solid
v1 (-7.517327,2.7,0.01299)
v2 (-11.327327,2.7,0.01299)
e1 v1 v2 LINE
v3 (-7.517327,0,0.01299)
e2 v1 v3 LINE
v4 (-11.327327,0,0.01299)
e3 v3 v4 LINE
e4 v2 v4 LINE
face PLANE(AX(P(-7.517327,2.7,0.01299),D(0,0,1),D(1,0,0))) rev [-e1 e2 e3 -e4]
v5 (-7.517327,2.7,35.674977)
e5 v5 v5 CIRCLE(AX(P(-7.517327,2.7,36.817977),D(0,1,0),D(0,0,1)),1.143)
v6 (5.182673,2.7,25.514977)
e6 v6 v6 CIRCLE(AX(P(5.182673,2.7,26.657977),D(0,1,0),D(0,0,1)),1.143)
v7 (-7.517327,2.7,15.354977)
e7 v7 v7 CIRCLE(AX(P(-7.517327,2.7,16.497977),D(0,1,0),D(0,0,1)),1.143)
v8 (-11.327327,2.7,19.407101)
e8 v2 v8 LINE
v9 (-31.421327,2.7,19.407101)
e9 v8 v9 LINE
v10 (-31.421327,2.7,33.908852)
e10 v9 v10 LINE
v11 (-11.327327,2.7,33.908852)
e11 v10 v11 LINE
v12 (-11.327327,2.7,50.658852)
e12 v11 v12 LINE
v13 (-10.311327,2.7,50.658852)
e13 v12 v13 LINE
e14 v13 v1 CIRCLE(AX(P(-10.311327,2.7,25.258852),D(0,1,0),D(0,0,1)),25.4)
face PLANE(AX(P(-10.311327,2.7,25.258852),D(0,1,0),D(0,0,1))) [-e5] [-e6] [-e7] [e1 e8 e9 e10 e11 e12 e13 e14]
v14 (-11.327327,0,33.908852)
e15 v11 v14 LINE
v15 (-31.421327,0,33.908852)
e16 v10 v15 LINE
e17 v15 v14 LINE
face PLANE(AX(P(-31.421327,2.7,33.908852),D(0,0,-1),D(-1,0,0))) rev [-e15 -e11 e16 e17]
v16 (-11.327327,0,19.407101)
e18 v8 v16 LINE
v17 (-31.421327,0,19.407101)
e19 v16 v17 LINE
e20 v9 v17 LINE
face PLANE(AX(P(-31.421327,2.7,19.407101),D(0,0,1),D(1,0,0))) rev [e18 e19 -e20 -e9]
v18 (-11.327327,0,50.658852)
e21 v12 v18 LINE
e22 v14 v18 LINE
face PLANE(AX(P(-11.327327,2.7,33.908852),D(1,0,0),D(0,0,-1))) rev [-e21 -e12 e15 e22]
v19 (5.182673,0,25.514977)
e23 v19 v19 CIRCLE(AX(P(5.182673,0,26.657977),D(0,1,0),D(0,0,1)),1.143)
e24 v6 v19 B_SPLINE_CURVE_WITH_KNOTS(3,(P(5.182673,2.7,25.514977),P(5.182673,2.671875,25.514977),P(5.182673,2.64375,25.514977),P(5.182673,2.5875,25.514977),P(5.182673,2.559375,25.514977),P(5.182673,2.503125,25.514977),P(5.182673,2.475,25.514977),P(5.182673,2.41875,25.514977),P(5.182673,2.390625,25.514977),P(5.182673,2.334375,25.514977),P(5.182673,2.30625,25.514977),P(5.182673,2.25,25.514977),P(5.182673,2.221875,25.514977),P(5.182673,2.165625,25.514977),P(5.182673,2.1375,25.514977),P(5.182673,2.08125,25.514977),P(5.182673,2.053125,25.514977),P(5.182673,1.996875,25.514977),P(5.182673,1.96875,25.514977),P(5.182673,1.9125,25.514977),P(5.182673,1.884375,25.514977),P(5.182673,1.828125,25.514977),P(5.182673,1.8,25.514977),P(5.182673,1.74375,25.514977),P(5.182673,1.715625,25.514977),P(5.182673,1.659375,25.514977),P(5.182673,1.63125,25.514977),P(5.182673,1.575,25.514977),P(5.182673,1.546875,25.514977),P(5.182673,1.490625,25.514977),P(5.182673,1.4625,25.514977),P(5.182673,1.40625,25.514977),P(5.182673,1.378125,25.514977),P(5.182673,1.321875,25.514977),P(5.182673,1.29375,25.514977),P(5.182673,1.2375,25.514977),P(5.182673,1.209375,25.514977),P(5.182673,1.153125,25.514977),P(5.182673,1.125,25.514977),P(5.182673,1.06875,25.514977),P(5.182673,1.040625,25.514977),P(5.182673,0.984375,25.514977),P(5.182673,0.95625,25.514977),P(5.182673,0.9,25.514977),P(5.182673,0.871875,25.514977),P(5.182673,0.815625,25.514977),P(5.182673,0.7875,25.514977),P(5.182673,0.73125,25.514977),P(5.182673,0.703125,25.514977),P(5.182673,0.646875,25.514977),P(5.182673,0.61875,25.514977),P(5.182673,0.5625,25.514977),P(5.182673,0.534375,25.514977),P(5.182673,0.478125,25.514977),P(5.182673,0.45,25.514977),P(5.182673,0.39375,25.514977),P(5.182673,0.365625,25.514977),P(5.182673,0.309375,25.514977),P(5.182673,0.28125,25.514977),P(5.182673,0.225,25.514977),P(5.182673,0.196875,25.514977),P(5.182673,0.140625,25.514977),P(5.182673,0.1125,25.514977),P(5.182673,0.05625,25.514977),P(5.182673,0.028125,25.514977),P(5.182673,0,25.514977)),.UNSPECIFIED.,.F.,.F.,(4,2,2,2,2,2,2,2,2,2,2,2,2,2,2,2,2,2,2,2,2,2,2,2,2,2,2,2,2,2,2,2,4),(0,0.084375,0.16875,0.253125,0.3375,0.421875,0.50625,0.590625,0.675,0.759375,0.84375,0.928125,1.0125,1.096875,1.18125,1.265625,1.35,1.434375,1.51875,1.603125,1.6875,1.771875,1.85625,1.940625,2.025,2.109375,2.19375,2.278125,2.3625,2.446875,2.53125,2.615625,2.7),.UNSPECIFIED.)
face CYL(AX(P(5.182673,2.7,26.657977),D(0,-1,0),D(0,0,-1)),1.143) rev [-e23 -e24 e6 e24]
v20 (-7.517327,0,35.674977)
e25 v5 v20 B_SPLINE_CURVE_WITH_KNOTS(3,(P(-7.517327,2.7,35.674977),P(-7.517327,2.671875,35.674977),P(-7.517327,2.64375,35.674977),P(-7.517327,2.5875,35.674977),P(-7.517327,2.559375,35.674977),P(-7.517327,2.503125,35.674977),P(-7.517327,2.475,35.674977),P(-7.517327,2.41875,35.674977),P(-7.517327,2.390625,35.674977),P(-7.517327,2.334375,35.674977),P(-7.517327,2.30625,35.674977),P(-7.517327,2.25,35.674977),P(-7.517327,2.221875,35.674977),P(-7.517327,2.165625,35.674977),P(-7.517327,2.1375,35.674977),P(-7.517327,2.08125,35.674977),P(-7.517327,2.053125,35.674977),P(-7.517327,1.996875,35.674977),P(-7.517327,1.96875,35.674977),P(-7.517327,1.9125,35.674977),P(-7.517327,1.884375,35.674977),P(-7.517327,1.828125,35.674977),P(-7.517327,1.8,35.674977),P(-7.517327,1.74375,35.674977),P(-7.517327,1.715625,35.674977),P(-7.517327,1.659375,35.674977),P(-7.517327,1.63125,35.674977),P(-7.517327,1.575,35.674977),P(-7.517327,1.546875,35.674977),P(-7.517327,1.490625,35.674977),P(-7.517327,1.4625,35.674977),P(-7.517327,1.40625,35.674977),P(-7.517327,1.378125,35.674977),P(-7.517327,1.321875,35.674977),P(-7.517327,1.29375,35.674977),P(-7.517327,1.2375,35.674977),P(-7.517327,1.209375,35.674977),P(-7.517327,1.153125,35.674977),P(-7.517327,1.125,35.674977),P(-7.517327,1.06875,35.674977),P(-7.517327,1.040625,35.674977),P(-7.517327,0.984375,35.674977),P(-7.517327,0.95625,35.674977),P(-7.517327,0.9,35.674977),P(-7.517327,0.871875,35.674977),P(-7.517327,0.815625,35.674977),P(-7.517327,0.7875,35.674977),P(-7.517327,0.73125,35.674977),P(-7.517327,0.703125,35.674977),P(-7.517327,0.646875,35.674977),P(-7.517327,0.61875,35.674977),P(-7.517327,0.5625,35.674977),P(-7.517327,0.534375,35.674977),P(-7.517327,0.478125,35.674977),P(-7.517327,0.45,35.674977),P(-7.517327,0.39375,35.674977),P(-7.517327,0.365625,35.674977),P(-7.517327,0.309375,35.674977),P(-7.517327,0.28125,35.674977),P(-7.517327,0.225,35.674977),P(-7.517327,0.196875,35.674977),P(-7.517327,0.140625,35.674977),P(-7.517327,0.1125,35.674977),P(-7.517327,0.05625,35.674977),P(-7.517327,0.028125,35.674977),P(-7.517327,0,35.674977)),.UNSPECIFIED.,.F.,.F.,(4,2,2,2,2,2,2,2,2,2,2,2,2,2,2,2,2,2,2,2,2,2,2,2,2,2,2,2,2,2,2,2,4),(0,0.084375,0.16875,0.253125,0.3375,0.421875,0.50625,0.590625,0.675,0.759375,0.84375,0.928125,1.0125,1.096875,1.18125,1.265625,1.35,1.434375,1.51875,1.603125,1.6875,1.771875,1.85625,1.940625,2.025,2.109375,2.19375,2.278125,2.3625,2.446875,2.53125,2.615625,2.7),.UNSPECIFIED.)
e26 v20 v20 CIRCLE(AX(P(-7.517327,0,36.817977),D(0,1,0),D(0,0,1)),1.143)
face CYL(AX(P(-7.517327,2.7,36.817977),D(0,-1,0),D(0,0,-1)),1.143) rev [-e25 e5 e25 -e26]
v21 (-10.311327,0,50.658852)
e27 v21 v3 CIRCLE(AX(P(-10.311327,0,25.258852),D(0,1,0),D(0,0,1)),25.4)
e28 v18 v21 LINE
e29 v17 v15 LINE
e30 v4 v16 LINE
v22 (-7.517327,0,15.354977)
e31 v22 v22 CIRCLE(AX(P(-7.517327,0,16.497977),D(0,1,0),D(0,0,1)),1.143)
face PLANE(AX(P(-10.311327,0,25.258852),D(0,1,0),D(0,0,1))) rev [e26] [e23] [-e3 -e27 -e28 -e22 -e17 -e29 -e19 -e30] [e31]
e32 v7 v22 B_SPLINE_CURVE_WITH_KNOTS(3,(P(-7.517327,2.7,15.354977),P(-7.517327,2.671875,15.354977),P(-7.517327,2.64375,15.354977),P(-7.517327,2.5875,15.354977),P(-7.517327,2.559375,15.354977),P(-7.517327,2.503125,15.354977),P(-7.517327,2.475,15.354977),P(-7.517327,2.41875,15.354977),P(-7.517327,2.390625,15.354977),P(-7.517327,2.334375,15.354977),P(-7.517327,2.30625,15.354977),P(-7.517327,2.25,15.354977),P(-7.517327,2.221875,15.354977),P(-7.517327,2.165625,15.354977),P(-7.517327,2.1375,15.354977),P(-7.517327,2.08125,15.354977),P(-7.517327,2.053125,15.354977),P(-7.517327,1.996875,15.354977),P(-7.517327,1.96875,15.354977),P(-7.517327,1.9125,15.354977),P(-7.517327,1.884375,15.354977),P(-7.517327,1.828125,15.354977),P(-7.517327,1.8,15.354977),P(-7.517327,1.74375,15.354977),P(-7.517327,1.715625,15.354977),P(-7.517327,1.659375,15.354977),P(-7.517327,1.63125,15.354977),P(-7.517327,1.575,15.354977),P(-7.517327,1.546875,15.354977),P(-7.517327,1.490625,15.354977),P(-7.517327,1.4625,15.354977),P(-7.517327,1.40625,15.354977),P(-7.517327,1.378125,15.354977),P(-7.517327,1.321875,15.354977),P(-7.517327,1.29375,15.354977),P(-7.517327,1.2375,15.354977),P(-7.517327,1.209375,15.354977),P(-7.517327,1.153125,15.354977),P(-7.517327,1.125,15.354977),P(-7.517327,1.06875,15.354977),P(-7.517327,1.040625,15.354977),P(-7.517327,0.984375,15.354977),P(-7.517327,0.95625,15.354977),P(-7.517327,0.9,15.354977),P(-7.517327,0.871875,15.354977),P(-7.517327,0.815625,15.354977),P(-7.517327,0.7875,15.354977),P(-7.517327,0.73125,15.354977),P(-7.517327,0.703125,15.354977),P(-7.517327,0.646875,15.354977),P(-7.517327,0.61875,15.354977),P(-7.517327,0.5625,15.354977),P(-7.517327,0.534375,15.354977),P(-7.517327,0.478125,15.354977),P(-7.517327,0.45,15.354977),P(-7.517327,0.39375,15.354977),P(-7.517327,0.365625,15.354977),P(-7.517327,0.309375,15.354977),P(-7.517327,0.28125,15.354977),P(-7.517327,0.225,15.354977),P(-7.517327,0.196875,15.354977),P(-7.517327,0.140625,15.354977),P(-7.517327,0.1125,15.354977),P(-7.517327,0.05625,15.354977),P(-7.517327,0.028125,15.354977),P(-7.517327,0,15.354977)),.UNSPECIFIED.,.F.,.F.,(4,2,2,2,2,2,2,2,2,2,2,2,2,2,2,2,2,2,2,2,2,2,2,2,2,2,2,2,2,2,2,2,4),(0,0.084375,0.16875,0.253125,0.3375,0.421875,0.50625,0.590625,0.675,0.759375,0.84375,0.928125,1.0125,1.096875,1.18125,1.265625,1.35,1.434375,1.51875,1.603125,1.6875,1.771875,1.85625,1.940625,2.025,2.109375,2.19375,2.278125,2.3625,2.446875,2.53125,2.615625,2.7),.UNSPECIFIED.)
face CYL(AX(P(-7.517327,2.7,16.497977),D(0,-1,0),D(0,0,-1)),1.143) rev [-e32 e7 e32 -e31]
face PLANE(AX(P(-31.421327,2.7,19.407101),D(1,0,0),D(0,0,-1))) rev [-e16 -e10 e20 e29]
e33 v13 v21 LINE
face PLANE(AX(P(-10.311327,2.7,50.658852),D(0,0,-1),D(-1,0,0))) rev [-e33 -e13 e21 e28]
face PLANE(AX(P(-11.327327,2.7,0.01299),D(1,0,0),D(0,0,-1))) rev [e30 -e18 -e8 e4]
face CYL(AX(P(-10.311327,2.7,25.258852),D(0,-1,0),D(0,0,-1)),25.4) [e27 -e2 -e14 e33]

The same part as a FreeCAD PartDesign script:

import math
import FreeCAD as App
import Part
import Sketcher
from FreeCAD import Vector
Q = App.Units.Quantity

doc = App.newDocument("Part")
body = doc.addObject("PartDesign::Body", "Body")

sketch1 = doc.addObject("Sketcher::SketchObject", "Sketch")
body.addObject(sketch1)
sketch1.AttachmentSupport = (doc.XZ_Plane, [""])
sketch1.MapMode = "FlatFace"
sketch1.addGeometry([
    Part.LineSegment(Vector(-11.3, 33.9, 0), Vector(-11.3, 50.7, 0)),
    Part.LineSegment(Vector(-11.3, 50.7, 0), Vector(-10.3, 50.7, 0)),
    Part.ArcOfCircle(Part.Circle(Vector(-10.3, 25.3, 0), Vector(0, 0, 1), 25.4), math.radians(-84), math.radians(90)),
    Part.LineSegment(Vector(-7.5, 0, 0), Vector(-11.3, 0, 0)),
    Part.LineSegment(Vector(-11.3, 0, 0), Vector(-11.3, 19.4, 0)),
    Part.LineSegment(Vector(-11.3, 19.4, 0), Vector(-31.4, 19.4, 0)),
    Part.LineSegment(Vector(-31.4, 19.4, 0), Vector(-31.4, 33.9, 0)),
    Part.LineSegment(Vector(-31.4, 33.9, 0), Vector(-11.3, 33.9, 0)),
    Part.Circle(Vector(-7.5, 36.8, 0), Vector(0, 0, 1), 1.1),
    Part.Circle(Vector(-7.5, 16.5, 0), Vector(0, 0, 1), 1.1),
    Part.Circle(Vector(5.2, 26.7, 0), Vector(0, 0, 1), 1.1),
], False)
sketch1.addConstraint([
    Sketcher.Constraint("Coincident", 0, 2, 1, 1),
    Sketcher.Constraint("Tangent", 1, 2, 2, 2),
    Sketcher.Constraint("Coincident", 2, 1, 3, 1),
    Sketcher.Constraint("Coincident", 3, 2, 4, 1),
    Sketcher.Constraint("Coincident", 4, 2, 5, 1),
    Sketcher.Constraint("Coincident", 5, 2, 6, 1),
    Sketcher.Constraint("Coincident", 6, 2, 7, 1),
    Sketcher.Constraint("Coincident", 7, 2, 0, 1),
    Sketcher.Constraint("Vertical", 0),
    Sketcher.Constraint("Horizontal", 1),
    Sketcher.Constraint("Horizontal", 3),
    Sketcher.Constraint("Vertical", 4),
    Sketcher.Constraint("Horizontal", 5),
    Sketcher.Constraint("Vertical", 6),
    Sketcher.Constraint("Horizontal", 7),
    Sketcher.Constraint("Equal", 8, 9),
    Sketcher.Constraint("Equal", 9, 10),
    Sketcher.Constraint("Vertical", 8, 3, 9, 3),
    Sketcher.Constraint("Vertical", 9, 3, 2, 1),
    Sketcher.Constraint("Vertical", 0, 2, 3, 2),
    Sketcher.Constraint("Radius", 2, Q("1 in")),
    Sketcher.Constraint("Diameter", 8, Q("0.09 in")),
    Sketcher.Constraint("DistanceX", 1, 1, 1, 2, Q("0.04 in")),
    Sketcher.Constraint("DistanceX", 3, 2, 3, 1, Q("0.15 in")),
    Sketcher.Constraint("DistanceY", 9, 3, 8, 3, Q("0.8 in")),
    Sketcher.Constraint("DistanceX", 8, 3, 10, 3, Q("0.5 in")),
    Sketcher.Constraint("DistanceY", 10, 3, 8, 3, Q("0.4 in")),
    Sketcher.Constraint("DistanceX", 5, 2, 5, 1, 20.094),
    Sketcher.Constraint("DistanceY", 0, 1, 0, 2, 16.75),
    Sketcher.Constraint("DistanceY", 4, 1, 4, 2, 19.394111),
    Sketcher.Constraint("DistanceY", -1, 1, 4, 2, 19.407101),
    Sketcher.Constraint("DistanceX", 2, 3, -1, 1, 10.311327),
    Sketcher.Constraint("DistanceY", -1, 1, 8, 3, 36.817977),
])
pad1 = doc.addObject("PartDesign::Pad", "Pad")
body.addObject(pad1)
pad1.Profile = sketch1
pad1.Length = 2.7
pad1.Reversed = True

doc.recompute()
